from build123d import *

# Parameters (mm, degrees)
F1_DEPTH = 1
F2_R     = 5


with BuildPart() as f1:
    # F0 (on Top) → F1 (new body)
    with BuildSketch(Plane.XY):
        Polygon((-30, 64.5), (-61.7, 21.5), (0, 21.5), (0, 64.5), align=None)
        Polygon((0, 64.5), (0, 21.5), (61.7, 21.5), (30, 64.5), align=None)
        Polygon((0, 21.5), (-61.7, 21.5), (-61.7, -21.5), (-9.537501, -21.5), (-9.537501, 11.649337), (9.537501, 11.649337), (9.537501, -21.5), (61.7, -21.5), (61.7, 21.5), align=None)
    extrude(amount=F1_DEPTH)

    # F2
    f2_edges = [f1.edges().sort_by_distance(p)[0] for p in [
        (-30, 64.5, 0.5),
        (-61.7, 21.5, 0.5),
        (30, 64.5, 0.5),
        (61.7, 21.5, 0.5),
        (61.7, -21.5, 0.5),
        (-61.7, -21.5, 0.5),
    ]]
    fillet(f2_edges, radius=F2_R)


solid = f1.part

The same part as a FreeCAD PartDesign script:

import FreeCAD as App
import Part
import Sketcher

V = App.Vector


def edges_at(feature, points):
    """Names of the edges that pass closest to the given points."""
    edges = feature.Shape.Edges
    near = lambda p: min(range(len(edges)), key=lambda i: edges[i].distToShape(Part.Vertex(*p))[0])
    return sorted({f"Edge{near(p) + 1}" for p in points})


def add_polygon(sketch, points):
    """Adds a closed chain of lines whose ends are joined by coincident constraints."""
    first, n = sketch.GeometryCount, len(points)
    for a, b in zip(points, points[1:] + points[:1]):
        sketch.addGeometry(Part.LineSegment(App.Vector(*a, 0), App.Vector(*b, 0)), False)
    for i in range(n):
        sketch.addConstraint(Sketcher.Constraint("Coincident", first + i, 2, first + (i + 1) % n, 1))

doc = App.newDocument("Part")
body = doc.addObject("PartDesign::Body", "Body")

# Sketch on XY plane
sketch1 = body.newObject("Sketcher::SketchObject", "Sketch")
sketch1.AttachmentSupport = (doc.getObject("XY_Plane"), [""])
sketch1.MapMode = "FlatFace"
add_polygon(sketch1, [(-30, 64), (-62, 22), (-62, -22), (-10, -22), (-10, 12), (10, 12), (10, -22), (62, -22), (62, 22), (30, 64)])  # lines 0-9
sketch1.addConstraint(Sketcher.Constraint("Vertical", 1))
sketch1.addConstraint(Sketcher.Constraint("Horizontal", 2))
sketch1.addConstraint(Sketcher.Constraint("Vertical", 3))
sketch1.addConstraint(Sketcher.Constraint("Horizontal", 4))
sketch1.addConstraint(Sketcher.Constraint("Vertical", 5))
sketch1.addConstraint(Sketcher.Constraint("Horizontal", 6))
sketch1.addConstraint(Sketcher.Constraint("Vertical", 7))
sketch1.addConstraint(Sketcher.Constraint("Horizontal", 9))
sketch1.addConstraint(Sketcher.Constraint("Symmetric", 0, 2, 6, 2, -1, 1))
sketch1.addConstraint(Sketcher.Constraint("Symmetric", 2, 2, 5, 2, -2))
sketch1.addConstraint(Sketcher.Constraint("Horizontal", 0, 2, 7, 2))
sketch1.addConstraint(Sketcher.Constraint("Equal", 0, 8))
sketch1.addConstraint(Sketcher.Constraint("DistanceX", 9, 2, 9, 1, 60.0))
sketch1.addConstraint(Sketcher.Constraint("DistanceY", 1, 2, 1, 1, 43.0))
sketch1.addConstraint(Sketcher.Constraint("DistanceY", 7, 2, 8, 2, 43.0))
sketch1.addConstraint(Sketcher.Constraint("DistanceX", 0, 2, -1, 1, 61.7))
sketch1.addConstraint(Sketcher.Constraint("DistanceX", 2, 1, 2, 2, 52.162499))
sketch1.addConstraint(Sketcher.Constraint("DistanceY", 3, 1, 3, 2, 33.149337))
pad1 = body.newObject("PartDesign::Pad", "Pad")
pad1.Profile = sketch1
pad1.Length = 1
doc.recompute()

fillet = body.newObject("PartDesign::Fillet", "Fillet")
fillet.Base = (pad1, edges_at(pad1, [
    (-30, 64.5, 0.5),
    (-61.7, 21.5, 0.5),
    (30, 64.5, 0.5),
    (61.7, 21.5, 0.5),
    (61.7, -21.5, 0.5),
    (-61.7, -21.5, 0.5),
]))
fillet.Radius = 5

doc.recompute()
